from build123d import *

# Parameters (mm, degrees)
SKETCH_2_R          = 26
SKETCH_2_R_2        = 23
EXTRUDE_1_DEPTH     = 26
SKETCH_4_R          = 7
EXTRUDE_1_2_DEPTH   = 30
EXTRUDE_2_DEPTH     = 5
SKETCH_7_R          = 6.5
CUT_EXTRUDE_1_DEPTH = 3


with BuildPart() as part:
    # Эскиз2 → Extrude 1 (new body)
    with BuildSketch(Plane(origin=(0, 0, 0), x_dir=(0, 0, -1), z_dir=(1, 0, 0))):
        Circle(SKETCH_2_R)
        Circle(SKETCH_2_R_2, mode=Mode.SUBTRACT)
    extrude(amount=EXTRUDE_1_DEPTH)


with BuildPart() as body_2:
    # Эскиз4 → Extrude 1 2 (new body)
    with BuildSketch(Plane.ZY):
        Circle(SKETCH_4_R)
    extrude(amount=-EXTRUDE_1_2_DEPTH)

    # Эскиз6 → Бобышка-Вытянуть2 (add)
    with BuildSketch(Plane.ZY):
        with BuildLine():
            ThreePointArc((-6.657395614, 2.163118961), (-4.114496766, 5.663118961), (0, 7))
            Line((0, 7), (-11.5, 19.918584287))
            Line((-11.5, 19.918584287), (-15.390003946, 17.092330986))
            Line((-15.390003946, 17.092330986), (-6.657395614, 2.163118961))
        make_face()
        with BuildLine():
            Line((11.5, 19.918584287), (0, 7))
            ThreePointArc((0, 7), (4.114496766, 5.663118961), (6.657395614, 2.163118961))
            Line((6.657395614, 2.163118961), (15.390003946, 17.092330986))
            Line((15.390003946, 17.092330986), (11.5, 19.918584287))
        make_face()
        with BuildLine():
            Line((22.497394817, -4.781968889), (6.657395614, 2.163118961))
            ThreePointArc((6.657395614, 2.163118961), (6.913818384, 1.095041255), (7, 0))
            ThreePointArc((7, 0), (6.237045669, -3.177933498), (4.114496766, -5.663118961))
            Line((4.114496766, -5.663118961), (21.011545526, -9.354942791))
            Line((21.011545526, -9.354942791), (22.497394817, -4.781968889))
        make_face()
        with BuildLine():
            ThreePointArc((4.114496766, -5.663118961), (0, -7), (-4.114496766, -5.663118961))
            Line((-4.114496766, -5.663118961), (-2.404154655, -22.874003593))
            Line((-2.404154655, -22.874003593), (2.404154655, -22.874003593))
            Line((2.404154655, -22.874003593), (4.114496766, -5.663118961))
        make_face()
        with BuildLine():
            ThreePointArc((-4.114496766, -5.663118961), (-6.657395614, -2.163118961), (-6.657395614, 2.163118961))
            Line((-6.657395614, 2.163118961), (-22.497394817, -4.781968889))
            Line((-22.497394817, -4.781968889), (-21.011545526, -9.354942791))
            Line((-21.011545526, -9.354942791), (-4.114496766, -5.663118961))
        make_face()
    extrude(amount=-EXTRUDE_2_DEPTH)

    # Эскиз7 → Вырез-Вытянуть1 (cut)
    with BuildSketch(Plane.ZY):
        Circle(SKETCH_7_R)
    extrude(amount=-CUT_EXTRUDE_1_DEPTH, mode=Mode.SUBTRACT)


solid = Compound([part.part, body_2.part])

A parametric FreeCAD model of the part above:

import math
import FreeCAD as App
import Part
import Sketcher
Q = App.Units.Quantity

doc = App.newDocument("Part")
params = doc.addObject("Spreadsheet::Sheet", "Params")
for row, (alias, value) in enumerate([
    ("sketch1_diameter", "52 mm"),
    ("sketch1_diameter2", "46 mm"),
    ("pad1_length", "26 mm"),
    ("sketch2_diameter", "14 mm"),
    ("pad2_length", "30 mm"),
    ("sketch3_radius", "7 mm"),
    ("pad3_length", "5 mm"),
    ("sketch4_diameter", "13 mm"),
    ("pocket1_length", "3 mm"),
], start=1):
    params.set(f"A{row}", alias)
    params.set(f"B{row}", "=" + value)
    params.setAlias(f"B{row}", alias)

body = doc.addObject("PartDesign::Body", "Body")

# Sketch on YZ plane
sketch1 = body.newObject("Sketcher::SketchObject", "Sketch")
sketch1.AttachmentSupport = (doc.getObject("YZ_Plane"), [""])
sketch1.MapMode = "FlatFace"
sketch1.addGeometry([
    Part.Circle(App.Vector(0, 0, 0), App.Vector(0, 0, 1), 26),
    Part.Circle(App.Vector(0, 0, 0), App.Vector(0, 0, 1), 23),
], False)
sketch1.addConstraint([
    Sketcher.Constraint("Coincident", 0, 3, -1, 1),
    Sketcher.Constraint("Coincident", 1, 3, -1, 1),
    Sketcher.Constraint("Diameter", 0, Q("52 mm")),
    Sketcher.Constraint("Diameter", 1, Q("46 mm")),
])
sketch1.setExpression("Constraints[2]", "Params.sketch1_diameter")
sketch1.setExpression("Constraints[3]", "Params.sketch1_diameter2")
pad1 = body.newObject("PartDesign::Pad", "Pad")
pad1.Profile = sketch1
pad1.setExpression("Length", "Params.pad1_length")
body2 = doc.addObject("PartDesign::Body", "Body001")

# Sketch on YZ plane
sketch2 = body2.newObject("Sketcher::SketchObject", "Sketch001")
sketch2.AttachmentSupport = (doc.getObject("YZ_Plane001"), [""])
sketch2.MapMode = "FlatFace"
sketch2.addGeometry(Part.Circle(App.Vector(0, 0, 0), App.Vector(0, 0, 1), 7), False)
sketch2.addConstraint([
    Sketcher.Constraint("Coincident", 0, 3, -1, 1),
    Sketcher.Constraint("Diameter", 0, Q("14 mm")),
])
sketch2.setExpression("Constraints[1]", "Params.sketch2_diameter")
pad2 = body2.newObject("PartDesign::Pad", "Pad001")
pad2.Profile = sketch2
pad2.setExpression("Length", "Params.pad2_length")

# Sketch on YZ plane
sketch3 = body2.newObject("Sketcher::SketchObject", "Sketch002")
sketch3.AttachmentSupport = (doc.getObject("YZ_Plane001"), [""])
sketch3.MapMode = "FlatFace"
sketch3.addGeometry([
    Part.ArcOfCircle(Part.Circle(App.Vector(0, 0, 0), App.Vector(0, 0, 1), 7), math.radians(-72), math.radians(0)),  # 0
    Part.LineSegment(App.Vector(7, 0, 0), App.Vector(19.9, -11.5, 0)),  # 1
    Part.LineSegment(App.Vector(19.9, -11.5, 0), App.Vector(17.1, -15.4, 0)),  # 2
    Part.LineSegment(App.Vector(17.1, -15.4, 0), App.Vector(2.2, -6.7, 0)),  # 3
    Part.LineSegment(App.Vector(19.9, 11.5, 0), App.Vector(7, 0, 0)),  # 4
    Part.ArcOfCircle(Part.Circle(App.Vector(0, 0, 0), App.Vector(0, 0, 1), 7), math.radians(0), math.radians(72)),  # 5
    Part.LineSegment(App.Vector(2.2, 6.7, 0), App.Vector(17.1, 15.4, 0)),  # 6
    Part.LineSegment(App.Vector(17.1, 15.4, 0), App.Vector(19.9, 11.5, 0)),  # 7
    Part.LineSegment(App.Vector(-4.8, 22.5, 0), App.Vector(2.2, 6.7, 0)),  # 8
    Part.ArcOfCircle(Part.Circle(App.Vector(0, 0, 0), App.Vector(0, 0, 1), 7), math.radians(72), math.radians(90)),  # 9
    Part.ArcOfCircle(Part.Circle(App.Vector(0, 0, 0), App.Vector(0, 0, 1), 7), math.radians(90), math.radians(144)),  # 10
    Part.LineSegment(App.Vector(-5.7, 4.1, 0), App.Vector(-9.4, 21, 0)),  # 11
    Part.LineSegment(App.Vector(-9.4, 21, 0), App.Vector(-4.8, 22.5, 0)),  # 12
    Part.ArcOfCircle(Part.Circle(App.Vector(0, 0, 0), App.Vector(0, 0, 1), 7), math.radians(144), math.radians(216)),  # 13
    Part.LineSegment(App.Vector(-5.7, -4.1, 0), App.Vector(-22.9, -2.4, 0)),  # 14
    Part.LineSegment(App.Vector(-22.9, -2.4, 0), App.Vector(-22.9, 2.4, 0)),  # 15
    Part.LineSegment(App.Vector(-22.9, 2.4, 0), App.Vector(-5.7, 4.1, 0)),  # 16
    Part.ArcOfCircle(Part.Circle(App.Vector(0, 0, 0), App.Vector(0, 0, 1), 7), math.radians(-144), math.radians(-72)),  # 17
    Part.LineSegment(App.Vector(2.2, -6.7, 0), App.Vector(-4.8, -22.5, 0)),  # 18
    Part.LineSegment(App.Vector(-4.8, -22.5, 0), App.Vector(-9.4, -21, 0)),  # 19
    Part.LineSegment(App.Vector(-9.4, -21, 0), App.Vector(-5.7, -4.1, 0)),  # 20
], False)
sketch3.addConstraint([
    Sketcher.Constraint("Coincident", 0, 2, 1, 1),
    Sketcher.Constraint("Coincident", 1, 2, 2, 1),
    Sketcher.Constraint("Coincident", 2, 2, 3, 1),
    Sketcher.Constraint("Coincident", 3, 2, 0, 1),
    Sketcher.Constraint("Coincident", 4, 2, 5, 1),
    Sketcher.Constraint("Coincident", 5, 2, 6, 1),
    Sketcher.Constraint("Coincident", 6, 2, 7, 1),
    Sketcher.Constraint("Coincident", 7, 2, 4, 1),
    Sketcher.Constraint("Coincident", 8, 2, 9, 1),
    Sketcher.Constraint("Tangent", 9, 2, 10, 1),
    Sketcher.Constraint("Coincident", 10, 2, 11, 1),
    Sketcher.Constraint("Coincident", 11, 2, 12, 1),
    Sketcher.Constraint("Coincident", 12, 2, 8, 1),
    Sketcher.Constraint("Coincident", 13, 2, 14, 1),
    Sketcher.Constraint("Coincident", 14, 2, 15, 1),
    Sketcher.Constraint("Coincident", 15, 2, 16, 1),
    Sketcher.Constraint("Coincident", 16, 2, 13, 1),
    Sketcher.Constraint("Coincident", 17, 2, 18, 1),
    Sketcher.Constraint("Coincident", 18, 2, 19, 1),
    Sketcher.Constraint("Coincident", 19, 2, 20, 1),
    Sketcher.Constraint("Coincident", 20, 2, 17, 1),
    Sketcher.Constraint("Vertical", 15),
    Sketcher.Constraint("Coincident", 0, 3, -1, 1),
    Sketcher.Constraint("Coincident", 5, 3, -1, 1),
    Sketcher.Constraint("Coincident", 9, 3, -1, 1),
    Sketcher.Constraint("Coincident", 13, 3, -1, 1),
    Sketcher.Constraint("Coincident", 17, 3, -1, 1),
    Sketcher.Constraint("Coincident", 4, 2, 0, 2),
    Sketcher.Constraint("Coincident", 8, 2, 5, 2),
    Sketcher.Constraint("Coincident", 16, 2, 10, 2),
    Sketcher.Constraint("Coincident", 17, 2, 3, 2),
    Sketcher.Constraint("Coincident", 20, 2, 13, 2),
    Sketcher.Constraint("Symmetric", 2, 2, 6, 2, -1),
    Sketcher.Constraint("Symmetric", 1, 2, 7, 2, -1),
    Sketcher.Constraint("Symmetric", 12, 2, 18, 2, -1),
    Sketcher.Constraint("Symmetric", 11, 2, 19, 2, -1),
    Sketcher.Constraint("PointOnObject", 0, 2, -1),
    Sketcher.Constraint("PointOnObject", 9, 2, -2),
    Sketcher.Constraint("Vertical", 3, 2, 5, 2),
    Sketcher.Constraint("Vertical", 10, 2, 13, 2),
    Sketcher.Constraint("Equal", 1, 3),
    Sketcher.Constraint("Equal", 6, 8),
    Sketcher.Constraint("Equal", 8, 11),
    Sketcher.Constraint("Equal", 7, 12),
    Sketcher.Constraint("Equal", 11, 14),
    Sketcher.Constraint("Equal", 14, 16),
    Sketcher.Constraint("Radius", 0, Q("7 mm")),
    Sketcher.Constraint("Angle", 2, Q("-126 deg")),
    Sketcher.Constraint("Angle", 12, Q("18 deg")),
    Sketcher.Constraint("DistanceY", 1, 2, -1, 1, Q("11.5 mm")),
    Sketcher.Constraint("DistanceY", 5, 2, 12, 2, Q("15.839999 mm")),
    Sketcher.Constraint("DistanceY", 15, 1, 15, 2, Q("4.808309 mm")),
    Sketcher.Constraint("DistanceY", 10, 2, 12, 2, Q("18.382898 mm")),
    Sketcher.Constraint("Distance", 1, Q("17.295659 mm")),
])
sketch3.setExpression("Constraints[46]", "Params.sketch3_radius")
pad3 = body2.newObject("PartDesign::Pad", "Pad002")
pad3.Profile = sketch3
pad3.setExpression("Length", "Params.pad3_length")

# Sketch on YZ plane
sketch4 = body2.newObject("Sketcher::SketchObject", "Sketch003")
sketch4.AttachmentSupport = (doc.getObject("YZ_Plane001"), [""])
sketch4.MapMode = "FlatFace"
sketch4.addGeometry(Part.Circle(App.Vector(0, 0, 0), App.Vector(0, 0, 1), 6), False)
sketch4.addConstraint([
    Sketcher.Constraint("Coincident", 0, 3, -1, 1),
    Sketcher.Constraint("Diameter", 0, Q("13 mm")),
])
sketch4.setExpression("Constraints[1]", "Params.sketch4_diameter")
pocket1 = body2.newObject("PartDesign::Pocket", "Pocket")
pocket1.Profile = sketch4
pocket1.setExpression("Length", "Params.pocket1_length")
pocket1.Reversed = True

doc.recompute()
